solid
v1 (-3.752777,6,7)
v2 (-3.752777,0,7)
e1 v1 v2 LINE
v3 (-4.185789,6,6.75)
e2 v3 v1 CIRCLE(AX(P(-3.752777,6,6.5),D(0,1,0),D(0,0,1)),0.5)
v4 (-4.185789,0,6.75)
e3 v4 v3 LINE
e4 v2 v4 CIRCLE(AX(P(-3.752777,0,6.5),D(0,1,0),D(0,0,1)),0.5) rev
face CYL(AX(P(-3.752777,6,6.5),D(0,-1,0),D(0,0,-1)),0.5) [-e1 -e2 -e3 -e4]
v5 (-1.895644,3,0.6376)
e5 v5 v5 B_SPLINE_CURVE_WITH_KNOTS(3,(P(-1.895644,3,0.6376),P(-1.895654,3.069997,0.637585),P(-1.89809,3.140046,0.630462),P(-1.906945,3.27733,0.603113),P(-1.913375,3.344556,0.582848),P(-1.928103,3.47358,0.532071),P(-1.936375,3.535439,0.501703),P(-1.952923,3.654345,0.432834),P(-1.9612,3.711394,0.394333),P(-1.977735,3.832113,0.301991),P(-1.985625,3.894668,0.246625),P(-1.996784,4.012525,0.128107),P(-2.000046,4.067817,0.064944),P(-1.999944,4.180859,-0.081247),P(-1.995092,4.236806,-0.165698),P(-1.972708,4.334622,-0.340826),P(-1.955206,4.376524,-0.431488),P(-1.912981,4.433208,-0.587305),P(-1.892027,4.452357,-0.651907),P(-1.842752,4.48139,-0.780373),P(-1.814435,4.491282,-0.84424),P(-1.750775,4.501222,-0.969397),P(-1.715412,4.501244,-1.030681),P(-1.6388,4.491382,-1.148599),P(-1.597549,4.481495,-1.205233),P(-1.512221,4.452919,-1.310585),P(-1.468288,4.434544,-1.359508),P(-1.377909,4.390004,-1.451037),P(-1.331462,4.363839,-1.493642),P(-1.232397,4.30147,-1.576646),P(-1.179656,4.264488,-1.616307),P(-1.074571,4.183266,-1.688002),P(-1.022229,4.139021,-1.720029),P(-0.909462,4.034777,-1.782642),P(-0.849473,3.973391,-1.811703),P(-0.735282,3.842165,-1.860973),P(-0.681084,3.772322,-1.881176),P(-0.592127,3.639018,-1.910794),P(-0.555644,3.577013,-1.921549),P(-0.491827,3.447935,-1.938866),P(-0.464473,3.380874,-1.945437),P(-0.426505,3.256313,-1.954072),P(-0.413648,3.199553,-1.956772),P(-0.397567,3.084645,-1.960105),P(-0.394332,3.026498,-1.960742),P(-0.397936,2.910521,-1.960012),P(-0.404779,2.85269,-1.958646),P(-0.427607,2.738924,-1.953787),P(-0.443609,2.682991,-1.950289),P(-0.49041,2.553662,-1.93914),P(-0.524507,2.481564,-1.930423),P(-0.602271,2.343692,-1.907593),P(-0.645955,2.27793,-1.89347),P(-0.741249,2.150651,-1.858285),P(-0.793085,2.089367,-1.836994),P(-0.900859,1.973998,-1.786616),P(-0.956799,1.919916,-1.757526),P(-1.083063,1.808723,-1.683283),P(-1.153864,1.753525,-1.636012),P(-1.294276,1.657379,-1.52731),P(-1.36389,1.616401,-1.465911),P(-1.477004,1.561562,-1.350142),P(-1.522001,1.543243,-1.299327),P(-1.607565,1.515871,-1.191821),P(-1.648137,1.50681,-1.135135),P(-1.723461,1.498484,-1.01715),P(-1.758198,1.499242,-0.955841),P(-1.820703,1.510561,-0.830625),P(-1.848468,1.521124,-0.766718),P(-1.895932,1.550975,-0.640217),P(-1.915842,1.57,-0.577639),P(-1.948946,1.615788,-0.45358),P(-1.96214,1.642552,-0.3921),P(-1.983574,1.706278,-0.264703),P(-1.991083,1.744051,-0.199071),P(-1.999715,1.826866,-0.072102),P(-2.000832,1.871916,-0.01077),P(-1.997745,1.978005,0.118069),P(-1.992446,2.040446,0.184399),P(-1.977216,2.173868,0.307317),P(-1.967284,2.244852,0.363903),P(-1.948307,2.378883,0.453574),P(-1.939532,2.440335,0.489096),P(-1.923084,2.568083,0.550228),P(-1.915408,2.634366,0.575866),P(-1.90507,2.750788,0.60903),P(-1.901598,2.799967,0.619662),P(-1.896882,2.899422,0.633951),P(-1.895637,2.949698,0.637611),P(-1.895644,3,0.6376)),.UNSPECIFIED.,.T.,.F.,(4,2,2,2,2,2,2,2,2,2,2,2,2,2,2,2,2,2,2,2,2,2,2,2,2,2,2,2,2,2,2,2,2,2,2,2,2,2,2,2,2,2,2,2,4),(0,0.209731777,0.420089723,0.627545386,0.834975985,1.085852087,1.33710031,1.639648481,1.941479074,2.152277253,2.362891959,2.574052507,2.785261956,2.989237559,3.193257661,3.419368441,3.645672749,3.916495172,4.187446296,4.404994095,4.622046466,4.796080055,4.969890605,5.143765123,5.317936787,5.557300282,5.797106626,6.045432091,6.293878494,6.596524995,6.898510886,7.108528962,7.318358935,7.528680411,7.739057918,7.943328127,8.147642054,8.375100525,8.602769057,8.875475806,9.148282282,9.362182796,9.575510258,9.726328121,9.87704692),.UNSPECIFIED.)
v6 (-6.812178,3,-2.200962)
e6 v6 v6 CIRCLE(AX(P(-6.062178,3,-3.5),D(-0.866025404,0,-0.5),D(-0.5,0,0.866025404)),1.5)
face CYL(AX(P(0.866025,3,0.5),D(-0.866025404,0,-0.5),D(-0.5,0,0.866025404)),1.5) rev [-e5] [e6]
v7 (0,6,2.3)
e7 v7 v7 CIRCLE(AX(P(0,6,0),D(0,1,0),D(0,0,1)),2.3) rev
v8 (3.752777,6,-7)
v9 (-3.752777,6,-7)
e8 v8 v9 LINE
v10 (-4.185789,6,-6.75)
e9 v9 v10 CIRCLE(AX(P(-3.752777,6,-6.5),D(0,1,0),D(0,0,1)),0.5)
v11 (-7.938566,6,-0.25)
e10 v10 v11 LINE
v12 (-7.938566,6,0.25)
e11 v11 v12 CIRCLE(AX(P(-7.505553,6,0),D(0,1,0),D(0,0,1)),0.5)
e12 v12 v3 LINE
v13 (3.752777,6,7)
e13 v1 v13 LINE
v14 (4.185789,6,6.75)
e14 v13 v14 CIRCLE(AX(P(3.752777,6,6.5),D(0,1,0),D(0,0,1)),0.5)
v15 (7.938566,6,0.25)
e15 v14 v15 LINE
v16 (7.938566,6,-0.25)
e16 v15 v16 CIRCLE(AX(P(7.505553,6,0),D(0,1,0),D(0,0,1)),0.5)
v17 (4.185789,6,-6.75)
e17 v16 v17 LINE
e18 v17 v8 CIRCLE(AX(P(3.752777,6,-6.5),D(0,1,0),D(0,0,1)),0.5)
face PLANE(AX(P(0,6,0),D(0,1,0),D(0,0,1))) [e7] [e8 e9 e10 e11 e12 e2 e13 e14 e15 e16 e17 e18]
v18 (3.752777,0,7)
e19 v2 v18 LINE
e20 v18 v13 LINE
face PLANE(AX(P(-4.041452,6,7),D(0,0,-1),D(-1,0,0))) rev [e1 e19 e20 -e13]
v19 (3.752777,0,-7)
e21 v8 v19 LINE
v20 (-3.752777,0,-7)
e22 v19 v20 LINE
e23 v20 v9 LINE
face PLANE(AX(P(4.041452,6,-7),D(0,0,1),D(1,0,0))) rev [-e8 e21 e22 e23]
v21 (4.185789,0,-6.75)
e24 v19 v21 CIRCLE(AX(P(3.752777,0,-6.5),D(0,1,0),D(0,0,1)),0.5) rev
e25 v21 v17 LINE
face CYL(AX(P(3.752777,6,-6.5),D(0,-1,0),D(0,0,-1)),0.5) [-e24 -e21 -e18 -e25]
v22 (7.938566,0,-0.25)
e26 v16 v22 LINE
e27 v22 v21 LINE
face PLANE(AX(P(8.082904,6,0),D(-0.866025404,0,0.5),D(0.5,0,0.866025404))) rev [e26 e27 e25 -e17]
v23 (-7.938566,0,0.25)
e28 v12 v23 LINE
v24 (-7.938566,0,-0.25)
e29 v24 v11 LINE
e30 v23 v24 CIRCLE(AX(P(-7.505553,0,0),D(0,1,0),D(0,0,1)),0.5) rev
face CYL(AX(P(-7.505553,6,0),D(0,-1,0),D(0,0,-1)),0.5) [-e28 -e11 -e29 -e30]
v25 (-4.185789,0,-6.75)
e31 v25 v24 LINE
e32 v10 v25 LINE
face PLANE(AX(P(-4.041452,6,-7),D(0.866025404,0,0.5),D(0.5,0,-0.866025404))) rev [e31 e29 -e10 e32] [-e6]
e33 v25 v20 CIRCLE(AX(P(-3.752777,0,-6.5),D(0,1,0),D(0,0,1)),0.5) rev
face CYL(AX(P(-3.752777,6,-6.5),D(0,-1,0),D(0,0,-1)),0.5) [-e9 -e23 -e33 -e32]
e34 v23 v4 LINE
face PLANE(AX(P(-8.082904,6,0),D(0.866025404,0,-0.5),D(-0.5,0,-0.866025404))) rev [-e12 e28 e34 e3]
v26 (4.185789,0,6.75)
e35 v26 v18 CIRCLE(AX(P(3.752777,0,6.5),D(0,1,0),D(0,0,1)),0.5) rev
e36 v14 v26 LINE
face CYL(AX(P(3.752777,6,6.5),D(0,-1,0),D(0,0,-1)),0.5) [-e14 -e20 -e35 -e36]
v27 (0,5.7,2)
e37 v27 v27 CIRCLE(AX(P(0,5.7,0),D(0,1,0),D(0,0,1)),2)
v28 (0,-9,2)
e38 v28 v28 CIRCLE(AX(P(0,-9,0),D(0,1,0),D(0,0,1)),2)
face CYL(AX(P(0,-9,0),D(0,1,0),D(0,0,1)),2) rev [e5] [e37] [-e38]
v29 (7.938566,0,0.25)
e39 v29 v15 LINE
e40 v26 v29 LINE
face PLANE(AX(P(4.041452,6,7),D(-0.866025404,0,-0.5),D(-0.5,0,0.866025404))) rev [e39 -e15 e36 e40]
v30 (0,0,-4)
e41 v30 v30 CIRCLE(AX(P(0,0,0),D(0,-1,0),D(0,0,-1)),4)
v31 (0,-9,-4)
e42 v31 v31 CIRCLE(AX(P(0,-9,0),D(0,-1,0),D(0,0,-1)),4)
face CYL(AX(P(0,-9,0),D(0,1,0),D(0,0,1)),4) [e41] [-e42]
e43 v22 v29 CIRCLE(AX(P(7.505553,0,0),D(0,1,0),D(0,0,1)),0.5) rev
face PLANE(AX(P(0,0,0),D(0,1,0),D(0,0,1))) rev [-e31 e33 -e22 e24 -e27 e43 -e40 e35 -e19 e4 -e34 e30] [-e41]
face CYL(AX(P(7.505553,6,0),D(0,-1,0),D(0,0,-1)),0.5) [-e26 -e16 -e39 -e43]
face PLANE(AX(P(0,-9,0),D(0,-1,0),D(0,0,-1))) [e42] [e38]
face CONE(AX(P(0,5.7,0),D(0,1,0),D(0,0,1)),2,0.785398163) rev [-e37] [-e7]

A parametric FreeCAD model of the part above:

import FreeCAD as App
import Part
import Sketcher

V = App.Vector
Q = App.Units.Quantity


def edges_at(feature, points):
    """Names of the edges that pass closest to the given points."""
    edges = feature.Shape.Edges
    near = lambda p: min(range(len(edges)), key=lambda i: edges[i].distToShape(Part.Vertex(*p))[0])
    return sorted({f"Edge{near(p) + 1}" for p in points})


def add_polygon(sketch, points):
    """Adds a closed chain of lines whose ends are joined by coincident constraints."""
    first, n = sketch.GeometryCount, len(points)
    for a, b in zip(points, points[1:] + points[:1]):
        sketch.addGeometry(Part.LineSegment(App.Vector(*a, 0), App.Vector(*b, 0)), False)
    for i in range(n):
        sketch.addConstraint(Sketcher.Constraint("Coincident", first + i, 2, first + (i + 1) % n, 1))

doc = App.newDocument("Part")
body = doc.addObject("PartDesign::Body", "Body")

# Sketch on XZ plane
sketch1 = body.newObject("Sketcher::SketchObject", "Sketch")
sketch1.AttachmentSupport = (doc.getObject("XZ_Plane"), [""])
sketch1.MapMode = "FlatFace"
add_polygon(sketch1, [(8, 0), (4, -7), (-4, -7), (-8, 0), (-4, 7), (4, 7)])  # lines 0-5
sketch1.addConstraint(Sketcher.Constraint("Horizontal", 1))
sketch1.addConstraint(Sketcher.Constraint("Horizontal", 4))
sketch1.addConstraint(Sketcher.Constraint("Symmetric", 0, 2, 3, 2, -1, 1))
sketch1.addConstraint(Sketcher.Constraint("Symmetric", 2, 2, 5, 2, -1, 1))
sketch1.addConstraint(Sketcher.Constraint("PointOnObject", 2, 2, -1))
sketch1.addConstraint(Sketcher.Constraint("Parallel", 2, 5))
sketch1.addConstraint(Sketcher.Constraint("Vertical", 1, 2, 3, 2))
sketch1.addConstraint(Sketcher.Constraint("Angle", 0, Q("-120 deg")))
sketch1.addConstraint(Sketcher.Constraint("DistanceY", 0, 2, -1, 1, 7.0))
sketch1.addConstraint(Sketcher.Constraint("DistanceX", 1, 2, 1, 1, 8.082904))
pad1 = body.newObject("PartDesign::Pad", "Pad")
pad1.Profile = sketch1
pad1.Length = 6
pad1.Reversed = True
doc.recompute()

fillet = body.newObject("PartDesign::Fillet", "Fillet")
fillet.Base = (pad1, edges_at(pad1, [
    (4.041, 3, 7),
    (-4.041, 3, 7),
    (-8.083, 3, 0),
    (-4.041, 3, -7),
    (4.041, 3, -7),
    (8.083, 3, 0),
]))
fillet.Radius = 0.5

# Sketch on XZ plane
sketch2 = body.newObject("Sketcher::SketchObject", "Sketch001")
sketch2.AttachmentSupport = (doc.getObject("XZ_Plane"), [""])
sketch2.MapMode = "FlatFace"
sketch2.addGeometry(Part.Circle(V(0, 0, 0), V(0, 0, 1), 4), False)
sketch2.addConstraint(Sketcher.Constraint("Coincident", 0, 3, -1, 1))
sketch2.addConstraint(Sketcher.Constraint("Diameter", 0, 8.0))
pad2 = body.newObject("PartDesign::Pad", "Pad001")
pad2.Profile = sketch2
pad2.Length = 9

# Sketch on XZ plane
sketch3 = body.newObject("Sketcher::SketchObject", "Sketch002")
sketch3.AttachmentSupport = (doc.getObject("XZ_Plane"), [""])
sketch3.MapMode = "FlatFace"
sketch3.AttachmentOffset = App.Placement(V(0, 0, -6), App.Rotation())
sketch3.addGeometry(Part.Circle(V(0, 0, 0), V(0, 0, 1), 2), False)
sketch3.addConstraint(Sketcher.Constraint("Coincident", 0, 3, -1, 1))
sketch3.addConstraint(Sketcher.Constraint("Diameter", 0, 4.0))
pocket1 = body.newObject("PartDesign::Pocket", "Pocket")
pocket1.Profile = sketch3
pocket1.Type = "ThroughAll"
pocket1.Reversed = True
doc.recompute()

chamfer = body.newObject("PartDesign::Chamfer", "Chamfer")
chamfer.Base = (pocket1, edges_at(pocket1, [(-2, 6, 0)]))
chamfer.Size = 0.3

# Sketch on an angled plane
sketch4 = body.newObject("Sketcher::SketchObject", "Sketch003")
sketch4.Placement = App.Placement(V(-6.062178, 0, -3.5), App.Rotation(V(-0.5, 0, 0.866025404), V(0, 1, 0), V(-0.866025404, 0, -0.5), "ZXY"))
sketch4.addGeometry(Part.Circle(V(0, 3, 0), V(0, 0, 1), 1.5), False)
sketch4.addConstraint(Sketcher.Constraint("PointOnObject", 0, 3, -2))
sketch4.addConstraint(Sketcher.Constraint("Diameter", 0, 3.0))
sketch4.addConstraint(Sketcher.Constraint("DistanceY", -1, 1, 0, 3, 3.0))
pocket2 = body.newObject("PartDesign::Pocket", "Pocket001")
pocket2.Profile = sketch4
pocket2.Length = 8

doc.recompute()
